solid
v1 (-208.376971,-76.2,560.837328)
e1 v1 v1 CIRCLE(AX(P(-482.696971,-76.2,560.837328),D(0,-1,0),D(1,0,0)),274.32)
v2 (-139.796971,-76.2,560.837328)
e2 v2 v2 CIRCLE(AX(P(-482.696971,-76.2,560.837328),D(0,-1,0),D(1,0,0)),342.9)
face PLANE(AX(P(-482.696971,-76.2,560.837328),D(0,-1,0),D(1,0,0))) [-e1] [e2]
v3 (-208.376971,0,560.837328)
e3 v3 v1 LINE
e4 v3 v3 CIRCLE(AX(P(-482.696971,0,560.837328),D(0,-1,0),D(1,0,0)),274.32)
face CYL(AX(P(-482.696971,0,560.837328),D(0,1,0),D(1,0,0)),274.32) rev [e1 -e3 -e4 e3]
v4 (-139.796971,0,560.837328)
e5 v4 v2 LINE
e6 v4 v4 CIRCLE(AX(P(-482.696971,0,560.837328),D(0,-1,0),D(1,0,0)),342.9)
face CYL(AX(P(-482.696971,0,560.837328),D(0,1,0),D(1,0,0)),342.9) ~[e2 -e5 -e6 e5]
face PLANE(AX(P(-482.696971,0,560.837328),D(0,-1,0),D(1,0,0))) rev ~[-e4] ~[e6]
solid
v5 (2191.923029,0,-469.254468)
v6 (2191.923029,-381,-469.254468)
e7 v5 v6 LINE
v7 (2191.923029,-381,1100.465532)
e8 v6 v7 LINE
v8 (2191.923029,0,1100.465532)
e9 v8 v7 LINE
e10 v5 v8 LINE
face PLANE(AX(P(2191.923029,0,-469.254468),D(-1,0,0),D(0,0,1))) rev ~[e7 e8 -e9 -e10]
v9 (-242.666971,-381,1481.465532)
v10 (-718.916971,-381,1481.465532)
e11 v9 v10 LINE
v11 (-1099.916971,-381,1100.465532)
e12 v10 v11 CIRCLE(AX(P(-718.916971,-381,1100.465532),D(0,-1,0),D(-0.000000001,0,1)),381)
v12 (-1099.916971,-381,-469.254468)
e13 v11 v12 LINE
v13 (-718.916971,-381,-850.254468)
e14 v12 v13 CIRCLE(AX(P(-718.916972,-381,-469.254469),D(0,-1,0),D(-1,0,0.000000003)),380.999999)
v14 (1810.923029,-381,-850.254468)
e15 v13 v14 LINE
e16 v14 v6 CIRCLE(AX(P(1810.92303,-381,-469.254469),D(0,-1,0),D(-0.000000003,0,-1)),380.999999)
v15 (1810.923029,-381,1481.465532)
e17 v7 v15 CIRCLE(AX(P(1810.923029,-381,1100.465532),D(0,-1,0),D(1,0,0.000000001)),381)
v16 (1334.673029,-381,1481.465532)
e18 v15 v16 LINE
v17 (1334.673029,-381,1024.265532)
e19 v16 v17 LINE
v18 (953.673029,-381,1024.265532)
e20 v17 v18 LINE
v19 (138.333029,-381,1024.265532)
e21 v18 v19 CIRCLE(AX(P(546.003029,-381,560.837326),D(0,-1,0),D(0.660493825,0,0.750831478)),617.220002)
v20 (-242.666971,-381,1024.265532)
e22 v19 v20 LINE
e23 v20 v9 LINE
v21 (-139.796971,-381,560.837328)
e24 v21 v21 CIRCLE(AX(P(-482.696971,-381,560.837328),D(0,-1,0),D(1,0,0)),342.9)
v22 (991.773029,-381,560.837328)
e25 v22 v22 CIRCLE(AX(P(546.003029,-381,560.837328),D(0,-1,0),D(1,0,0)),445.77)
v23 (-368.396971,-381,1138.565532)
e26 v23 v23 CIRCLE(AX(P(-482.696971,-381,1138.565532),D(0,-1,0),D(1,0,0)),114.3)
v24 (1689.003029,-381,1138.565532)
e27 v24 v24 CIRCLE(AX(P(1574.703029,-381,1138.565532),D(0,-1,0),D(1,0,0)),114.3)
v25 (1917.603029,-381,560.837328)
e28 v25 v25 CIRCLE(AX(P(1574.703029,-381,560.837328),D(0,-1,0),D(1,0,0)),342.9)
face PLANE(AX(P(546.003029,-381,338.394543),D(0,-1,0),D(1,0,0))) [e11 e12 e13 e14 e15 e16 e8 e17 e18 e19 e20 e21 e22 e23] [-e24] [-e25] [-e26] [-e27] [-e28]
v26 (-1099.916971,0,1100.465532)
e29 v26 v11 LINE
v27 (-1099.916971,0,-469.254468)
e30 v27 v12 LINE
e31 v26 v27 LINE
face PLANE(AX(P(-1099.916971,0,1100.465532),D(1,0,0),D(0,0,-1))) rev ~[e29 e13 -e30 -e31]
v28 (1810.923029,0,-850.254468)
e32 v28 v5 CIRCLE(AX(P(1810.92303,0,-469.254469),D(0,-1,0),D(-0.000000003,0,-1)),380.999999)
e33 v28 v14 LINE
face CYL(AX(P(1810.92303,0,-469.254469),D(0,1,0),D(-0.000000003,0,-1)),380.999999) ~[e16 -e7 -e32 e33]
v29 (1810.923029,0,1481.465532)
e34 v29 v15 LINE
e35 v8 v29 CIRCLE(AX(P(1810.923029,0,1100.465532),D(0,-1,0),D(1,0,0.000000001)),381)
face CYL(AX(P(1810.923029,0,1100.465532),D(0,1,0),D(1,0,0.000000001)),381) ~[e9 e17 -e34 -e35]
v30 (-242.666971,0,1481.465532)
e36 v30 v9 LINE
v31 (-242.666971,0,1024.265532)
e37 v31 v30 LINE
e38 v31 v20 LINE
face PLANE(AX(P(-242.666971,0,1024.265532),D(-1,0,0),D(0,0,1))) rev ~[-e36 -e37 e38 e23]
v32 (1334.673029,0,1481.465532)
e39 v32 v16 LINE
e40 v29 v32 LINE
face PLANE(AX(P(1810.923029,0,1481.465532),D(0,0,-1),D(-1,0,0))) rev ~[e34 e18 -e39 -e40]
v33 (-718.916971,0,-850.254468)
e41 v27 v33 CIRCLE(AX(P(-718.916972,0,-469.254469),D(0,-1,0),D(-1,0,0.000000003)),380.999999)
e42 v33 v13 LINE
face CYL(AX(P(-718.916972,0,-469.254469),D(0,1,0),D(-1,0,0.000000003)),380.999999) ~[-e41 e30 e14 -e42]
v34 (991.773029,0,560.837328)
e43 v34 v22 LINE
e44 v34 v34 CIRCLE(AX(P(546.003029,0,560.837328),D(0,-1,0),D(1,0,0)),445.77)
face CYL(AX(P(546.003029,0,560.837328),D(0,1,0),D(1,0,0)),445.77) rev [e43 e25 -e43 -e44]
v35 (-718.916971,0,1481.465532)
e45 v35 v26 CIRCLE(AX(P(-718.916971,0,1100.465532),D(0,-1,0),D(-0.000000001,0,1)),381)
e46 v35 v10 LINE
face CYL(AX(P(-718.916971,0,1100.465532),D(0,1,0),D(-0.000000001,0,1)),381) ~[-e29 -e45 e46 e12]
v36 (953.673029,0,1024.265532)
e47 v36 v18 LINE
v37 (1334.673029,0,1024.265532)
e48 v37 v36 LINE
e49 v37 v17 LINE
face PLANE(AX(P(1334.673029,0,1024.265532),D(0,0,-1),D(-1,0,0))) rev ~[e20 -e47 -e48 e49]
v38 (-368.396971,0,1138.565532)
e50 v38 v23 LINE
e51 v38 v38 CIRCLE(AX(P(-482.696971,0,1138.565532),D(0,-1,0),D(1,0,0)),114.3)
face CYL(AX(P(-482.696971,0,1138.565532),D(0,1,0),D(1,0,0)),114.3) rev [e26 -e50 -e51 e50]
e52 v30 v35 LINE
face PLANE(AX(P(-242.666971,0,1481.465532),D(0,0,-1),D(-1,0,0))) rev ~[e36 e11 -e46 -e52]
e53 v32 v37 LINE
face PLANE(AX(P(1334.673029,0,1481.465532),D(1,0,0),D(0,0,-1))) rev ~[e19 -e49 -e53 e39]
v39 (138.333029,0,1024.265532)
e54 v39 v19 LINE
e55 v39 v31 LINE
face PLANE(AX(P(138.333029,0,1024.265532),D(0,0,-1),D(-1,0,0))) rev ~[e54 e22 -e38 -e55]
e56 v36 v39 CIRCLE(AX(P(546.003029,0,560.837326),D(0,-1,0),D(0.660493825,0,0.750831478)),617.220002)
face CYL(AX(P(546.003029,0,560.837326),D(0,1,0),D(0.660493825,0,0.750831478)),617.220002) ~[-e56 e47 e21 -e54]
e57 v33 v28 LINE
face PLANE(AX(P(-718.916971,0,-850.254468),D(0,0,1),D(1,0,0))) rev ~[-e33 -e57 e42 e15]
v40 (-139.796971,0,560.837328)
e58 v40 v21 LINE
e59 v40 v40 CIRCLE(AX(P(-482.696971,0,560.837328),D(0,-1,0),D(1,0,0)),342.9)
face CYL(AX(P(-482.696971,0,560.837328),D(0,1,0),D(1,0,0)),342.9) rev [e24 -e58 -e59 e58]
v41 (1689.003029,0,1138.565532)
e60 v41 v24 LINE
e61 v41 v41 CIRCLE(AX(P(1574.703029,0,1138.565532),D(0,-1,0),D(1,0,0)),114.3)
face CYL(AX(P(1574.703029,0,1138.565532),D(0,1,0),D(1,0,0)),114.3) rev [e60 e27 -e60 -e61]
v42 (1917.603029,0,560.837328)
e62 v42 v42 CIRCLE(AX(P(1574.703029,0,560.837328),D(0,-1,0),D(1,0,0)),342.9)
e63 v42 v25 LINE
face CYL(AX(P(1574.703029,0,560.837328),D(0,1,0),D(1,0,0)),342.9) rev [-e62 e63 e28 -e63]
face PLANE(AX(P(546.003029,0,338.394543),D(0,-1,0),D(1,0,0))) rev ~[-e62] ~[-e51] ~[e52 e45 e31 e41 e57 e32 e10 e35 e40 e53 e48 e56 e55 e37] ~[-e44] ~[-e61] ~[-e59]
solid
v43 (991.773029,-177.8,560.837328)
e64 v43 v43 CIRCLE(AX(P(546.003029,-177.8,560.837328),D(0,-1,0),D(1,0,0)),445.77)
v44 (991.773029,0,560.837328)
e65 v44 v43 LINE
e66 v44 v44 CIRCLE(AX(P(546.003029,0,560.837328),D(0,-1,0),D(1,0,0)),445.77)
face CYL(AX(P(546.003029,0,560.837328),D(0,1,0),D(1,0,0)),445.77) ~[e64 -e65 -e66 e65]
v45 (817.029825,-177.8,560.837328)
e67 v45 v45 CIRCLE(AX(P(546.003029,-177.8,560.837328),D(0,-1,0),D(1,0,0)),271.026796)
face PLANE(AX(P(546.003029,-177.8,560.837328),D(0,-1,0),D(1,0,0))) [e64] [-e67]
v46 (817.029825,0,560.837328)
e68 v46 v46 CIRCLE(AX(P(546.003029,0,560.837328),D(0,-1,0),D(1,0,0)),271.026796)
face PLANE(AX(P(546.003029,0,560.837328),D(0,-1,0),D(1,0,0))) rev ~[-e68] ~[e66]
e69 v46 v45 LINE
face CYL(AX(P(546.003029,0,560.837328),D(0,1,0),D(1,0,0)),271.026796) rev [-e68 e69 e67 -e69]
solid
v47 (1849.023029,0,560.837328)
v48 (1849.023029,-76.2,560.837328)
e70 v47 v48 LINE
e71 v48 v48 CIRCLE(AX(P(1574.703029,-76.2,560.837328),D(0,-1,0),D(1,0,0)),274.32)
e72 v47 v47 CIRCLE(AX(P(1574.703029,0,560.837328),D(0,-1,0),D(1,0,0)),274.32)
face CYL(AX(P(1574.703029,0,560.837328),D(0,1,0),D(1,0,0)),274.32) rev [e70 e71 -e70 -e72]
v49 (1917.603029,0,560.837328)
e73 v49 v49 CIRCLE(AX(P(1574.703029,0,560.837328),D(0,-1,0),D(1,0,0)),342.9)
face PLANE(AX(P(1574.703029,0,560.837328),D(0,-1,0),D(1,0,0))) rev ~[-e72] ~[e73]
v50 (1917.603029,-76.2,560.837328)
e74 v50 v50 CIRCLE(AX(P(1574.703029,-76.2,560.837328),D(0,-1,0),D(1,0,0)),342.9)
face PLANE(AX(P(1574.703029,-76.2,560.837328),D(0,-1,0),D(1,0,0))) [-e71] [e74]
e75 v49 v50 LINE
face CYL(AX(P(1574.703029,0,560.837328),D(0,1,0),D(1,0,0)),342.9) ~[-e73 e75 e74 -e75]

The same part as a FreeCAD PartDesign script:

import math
import FreeCAD as App
import Part
import Sketcher
from FreeCAD import Vector
Q = App.Units.Quantity

doc = App.newDocument("Part")
body = doc.addObject("PartDesign::Body", "Body")
body.AllowCompound = True

# Sketch on XZ plane
sketch1 = body.newObject("Sketcher::SketchObject", "Sketch")
sketch1.AttachmentSupport = (doc.getObject("XZ_Plane"), [""])
sketch1.MapMode = "FlatFace"
sketch1.addGeometry([
    Part.Circle(Vector(-483, 561, 0), Vector(0, 0, 1), 343),
    Part.Circle(Vector(-483, 561, 0), Vector(0, 0, 1), 274),
    Part.Circle(Vector(1575, 561, 0), Vector(0, 0, 1), 343),
    Part.Circle(Vector(1575, 561, 0), Vector(0, 0, 1), 274),
], False)
sketch1.addConstraint([
    Sketcher.Constraint("Coincident", 1, 3, 0, 3),
    Sketcher.Constraint("Coincident", 3, 3, 2, 3),
    Sketcher.Constraint("Equal", 0, 2),
    Sketcher.Constraint("Equal", 1, 3),
    Sketcher.Constraint("Horizontal", 1, 3, 2, 3),
    Sketcher.Constraint("Diameter", 0, Q("27 in")),
    Sketcher.Constraint("Diameter", 1, Q("21.6 in")),
    Sketcher.Constraint("DistanceX", 0, 3, 2, 3, Q("81 in")),
    Sketcher.Constraint("DistanceX", 0, 3, -1, 1, Q("482.696971 mm")),
    Sketcher.Constraint("DistanceY", -1, 1, 0, 3, Q("560.837328 mm")),
])
pad1 = body.newObject("PartDesign::Pad", "Pad")
pad1.Profile = sketch1
pad1.Length = Q("3 in")
body2 = doc.addObject("PartDesign::Body", "Body001")

# Sketch on XZ plane
sketch2 = body2.newObject("Sketcher::SketchObject", "Sketch001")
sketch2.AttachmentSupport = (doc.getObject("XZ_Plane001"), [""])
sketch2.MapMode = "FlatFace"
sketch2.addGeometry([
    Part.Circle(Vector(546, 561, 0), Vector(0, 0, 1), 446),
    Part.Circle(Vector(546, 561, 0), Vector(0, 0, 1), 271),
], False)
sketch2.addConstraint([
    Sketcher.Constraint("Coincident", 1, 3, 0, 3),
    Sketcher.Constraint("Diameter", 0, Q("35.1 in")),
    Sketcher.Constraint("Diameter", 1, Q("542.053592 mm")),
    Sketcher.Constraint("DistanceX", -1, 1, 0, 3, Q("546.003029 mm")),
    Sketcher.Constraint("DistanceY", -1, 1, 0, 3, Q("560.837328 mm")),
])
pad2 = body2.newObject("PartDesign::Pad", "Pad001")
pad2.Profile = sketch2
pad2.Length = Q("7 in")
body3 = doc.addObject("PartDesign::Body", "Body002")

# Sketch on XZ plane
sketch3 = body3.newObject("Sketcher::SketchObject", "Sketch002")
sketch3.AttachmentSupport = (doc.getObject("XZ_Plane002"), [""])
sketch3.MapMode = "FlatFace"
sketch3.addGeometry([
    Part.LineSegment(Vector(2192, -469, 0), Vector(2192, 1100, 0)),  # 0
    Part.ArcOfCircle(Part.Circle(Vector(1811, 1100, 0), Vector(0, 0, 1), 381), math.radians(0), math.radians(90)),  # 1
    Part.LineSegment(Vector(1811, 1481, 0), Vector(1335, 1481, 0)),  # 2
    Part.LineSegment(Vector(1335, 1481, 0), Vector(1335, 1024, 0)),  # 3
    Part.LineSegment(Vector(1335, 1024, 0), Vector(954, 1024, 0)),  # 4
    Part.ArcOfCircle(Part.Circle(Vector(546, 561, 0), Vector(0, 0, 1), 617), math.radians(49), math.radians(131)),  # 5
    Part.LineSegment(Vector(138, 1024, 0), Vector(-243, 1024, 0)),  # 6
    Part.LineSegment(Vector(-243, 1024, 0), Vector(-243, 1481, 0)),  # 7
    Part.LineSegment(Vector(-243, 1481, 0), Vector(-719, 1481, 0)),  # 8
    Part.ArcOfCircle(Part.Circle(Vector(-719, 1100, 0), Vector(0, 0, 1), 381), math.radians(90), math.radians(180)),  # 9
    Part.LineSegment(Vector(-1100, 1100, 0), Vector(-1100, -469, 0)),  # 10
    Part.ArcOfCircle(Part.Circle(Vector(-719, -469, 0), Vector(0, 0, 1), 381), math.radians(180), math.radians(270)),  # 11
    Part.LineSegment(Vector(-719, -850, 0), Vector(1811, -850, 0)),  # 12
    Part.ArcOfCircle(Part.Circle(Vector(1811, -469, 0), Vector(0, 0, 1), 381), math.radians(-90), math.radians(0)),  # 13
    Part.Circle(Vector(-483, 561, 0), Vector(0, 0, 1), 343),  # 14
    Part.Circle(Vector(546, 561, 0), Vector(0, 0, 1), 446),  # 15
    Part.Circle(Vector(1575, 561, 0), Vector(0, 0, 1), 343),  # 16
    Part.Circle(Vector(-483, 1139, 0), Vector(0, 0, 1), 114),  # 17
    Part.Circle(Vector(1575, 1139, 0), Vector(0, 0, 1), 114),  # 18
], False)
sketch3.addConstraint([
    Sketcher.Constraint("Tangent", 0, 2, 1, 1),
    Sketcher.Constraint("Tangent", 1, 2, 2, 1),
    Sketcher.Constraint("Coincident", 2, 2, 3, 1),
    Sketcher.Constraint("Coincident", 3, 2, 4, 1),
    Sketcher.Constraint("Coincident", 4, 2, 5, 1),
    Sketcher.Constraint("Coincident", 5, 2, 6, 1),
    Sketcher.Constraint("Coincident", 6, 2, 7, 1),
    Sketcher.Constraint("Coincident", 7, 2, 8, 1),
    Sketcher.Constraint("Tangent", 8, 2, 9, 1),
    Sketcher.Constraint("Tangent", 9, 2, 10, 1),
    Sketcher.Constraint("Tangent", 10, 2, 11, 1),
    Sketcher.Constraint("Tangent", 11, 2, 12, 1),
    Sketcher.Constraint("Tangent", 12, 2, 13, 1),
    Sketcher.Constraint("Tangent", 13, 2, 0, 1),
    Sketcher.Constraint("Vertical", 0),
    Sketcher.Constraint("Horizontal", 2),
    Sketcher.Constraint("Vertical", 3),
    Sketcher.Constraint("Horizontal", 4),
    Sketcher.Constraint("Horizontal", 6),
    Sketcher.Constraint("Vertical", 7),
    Sketcher.Constraint("Horizontal", 8),
    Sketcher.Constraint("Vertical", 10),
    Sketcher.Constraint("Horizontal", 12),
    Sketcher.Constraint("Coincident", 15, 3, 5, 3),
    Sketcher.Constraint("Equal", 1, 9),
    Sketcher.Constraint("Equal", 9, 11),
    Sketcher.Constraint("Equal", 11, 13),
    Sketcher.Constraint("Equal", 14, 16),
    Sketcher.Constraint("Equal", 17, 18),
    Sketcher.Constraint("Horizontal", 1, 3, 9, 3),
    Sketcher.Constraint("Horizontal", 14, 3, 15, 3),
    Sketcher.Constraint("Horizontal", 15, 3, 16, 3),
    Sketcher.Constraint("Horizontal", 17, 3, 18, 3),
    Sketcher.Constraint("Vertical", 14, 3, 17, 3),
    Sketcher.Constraint("Vertical", 16, 3, 18, 3),
    Sketcher.Constraint("Equal", 4, 6),
    Sketcher.Constraint("Equal", 2, 8),
    Sketcher.Constraint("Equal", 3, 7),
    Sketcher.Constraint("Diameter", 14, Q("27 in")),
    Sketcher.Constraint("Diameter", 17, Q("9 in")),
    Sketcher.Constraint("Radius", 1, Q("15 in")),
    Sketcher.Constraint("Diameter", 15, Q("35.1 in")),
    Sketcher.Constraint("Radius", 5, Q("24.3000001 in")),
    Sketcher.Constraint("DistanceX", 4, 2, 4, 1, Q("15 in")),
    Sketcher.Constraint("DistanceY", 3, 2, 3, 1, Q("18 in")),
    Sketcher.Constraint("DistanceX", 12, 1, 12, 2, Q("99.6 in")),
    Sketcher.Constraint("DistanceY", 0, 1, 0, 2, Q("61.8 in")),
    Sketcher.Constraint("DistanceX", 14, 3, 16, 3, Q("81 in")),
    Sketcher.Constraint("DistanceX", 2, 2, 2, 1, Q("18.75 in")),
    Sketcher.Constraint("DistanceX", 9, 3, 14, 3, Q("9.3 in")),
    Sketcher.Constraint("DistanceY", 9, 3, 17, 3, Q("1.5 in")),
    Sketcher.Constraint("DistanceX", -1, 1, 1, 3, Q("1810.923029 mm")),
    Sketcher.Constraint("DistanceY", -1, 1, 1, 3, Q("1100.465532 mm")),
])
pad3 = body3.newObject("PartDesign::Pad", "Pad002")
pad3.Profile = sketch3
pad3.Length = Q("15 in")

doc.recompute()
